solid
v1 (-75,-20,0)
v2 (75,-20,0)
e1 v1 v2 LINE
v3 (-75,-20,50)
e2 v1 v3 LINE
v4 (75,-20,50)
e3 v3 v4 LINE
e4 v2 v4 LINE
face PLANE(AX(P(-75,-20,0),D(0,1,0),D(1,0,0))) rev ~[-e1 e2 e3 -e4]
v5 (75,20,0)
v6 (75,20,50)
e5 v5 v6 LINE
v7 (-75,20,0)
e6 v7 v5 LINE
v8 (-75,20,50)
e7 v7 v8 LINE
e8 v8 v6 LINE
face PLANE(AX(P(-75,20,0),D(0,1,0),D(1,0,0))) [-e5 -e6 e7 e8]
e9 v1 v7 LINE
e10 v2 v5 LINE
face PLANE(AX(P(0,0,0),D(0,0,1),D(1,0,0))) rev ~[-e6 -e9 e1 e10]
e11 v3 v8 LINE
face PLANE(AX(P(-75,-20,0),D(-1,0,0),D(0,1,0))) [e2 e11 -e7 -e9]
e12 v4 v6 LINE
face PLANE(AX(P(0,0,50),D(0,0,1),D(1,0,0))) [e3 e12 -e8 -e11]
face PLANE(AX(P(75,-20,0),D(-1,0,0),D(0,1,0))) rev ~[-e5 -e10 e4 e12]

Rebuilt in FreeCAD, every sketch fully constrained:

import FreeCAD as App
import Part
import Sketcher
from FreeCAD import Vector


def add_polygon(sketch, points):
    """Adds a closed chain of lines whose ends are joined by coincident constraints."""
    first, n = sketch.GeometryCount, len(points)
    for a, b in zip(points, points[1:] + points[:1]):
        sketch.addGeometry(Part.LineSegment(App.Vector(*a, 0), App.Vector(*b, 0)), False)
    for i in range(n):
        sketch.addConstraint(Sketcher.Constraint("Coincident", first + i, 2, first + (i + 1) % n, 1))

doc = App.newDocument("Part")
body = doc.addObject("PartDesign::Body", "Body")

sketch1 = doc.addObject("Sketcher::SketchObject", "Sketch")
body.addObject(sketch1)
sketch1.AttachmentSupport = (doc.XY_Plane, [""])
sketch1.MapMode = "FlatFace"
add_polygon(sketch1, [(-75, 20), (-75, -20), (75, -20), (75, 20)])
sketch1.addConstraint([
    Sketcher.Constraint("Vertical", 0),
    Sketcher.Constraint("Horizontal", 1),
    Sketcher.Constraint("Vertical", 2),
    Sketcher.Constraint("Horizontal", 3),
    Sketcher.Constraint("Symmetric", 0, 2, 2, 2, -1, 1),
    Sketcher.Constraint("DistanceX", 1, 1, 1, 2, 150.0),
    Sketcher.Constraint("DistanceY", 0, 2, 0, 1, 40.0),
])
pad1 = doc.addObject("PartDesign::Pad", "Pad")
body.addObject(pad1)
pad1.Profile = sketch1
pad1.Length = 50

doc.recompute()
